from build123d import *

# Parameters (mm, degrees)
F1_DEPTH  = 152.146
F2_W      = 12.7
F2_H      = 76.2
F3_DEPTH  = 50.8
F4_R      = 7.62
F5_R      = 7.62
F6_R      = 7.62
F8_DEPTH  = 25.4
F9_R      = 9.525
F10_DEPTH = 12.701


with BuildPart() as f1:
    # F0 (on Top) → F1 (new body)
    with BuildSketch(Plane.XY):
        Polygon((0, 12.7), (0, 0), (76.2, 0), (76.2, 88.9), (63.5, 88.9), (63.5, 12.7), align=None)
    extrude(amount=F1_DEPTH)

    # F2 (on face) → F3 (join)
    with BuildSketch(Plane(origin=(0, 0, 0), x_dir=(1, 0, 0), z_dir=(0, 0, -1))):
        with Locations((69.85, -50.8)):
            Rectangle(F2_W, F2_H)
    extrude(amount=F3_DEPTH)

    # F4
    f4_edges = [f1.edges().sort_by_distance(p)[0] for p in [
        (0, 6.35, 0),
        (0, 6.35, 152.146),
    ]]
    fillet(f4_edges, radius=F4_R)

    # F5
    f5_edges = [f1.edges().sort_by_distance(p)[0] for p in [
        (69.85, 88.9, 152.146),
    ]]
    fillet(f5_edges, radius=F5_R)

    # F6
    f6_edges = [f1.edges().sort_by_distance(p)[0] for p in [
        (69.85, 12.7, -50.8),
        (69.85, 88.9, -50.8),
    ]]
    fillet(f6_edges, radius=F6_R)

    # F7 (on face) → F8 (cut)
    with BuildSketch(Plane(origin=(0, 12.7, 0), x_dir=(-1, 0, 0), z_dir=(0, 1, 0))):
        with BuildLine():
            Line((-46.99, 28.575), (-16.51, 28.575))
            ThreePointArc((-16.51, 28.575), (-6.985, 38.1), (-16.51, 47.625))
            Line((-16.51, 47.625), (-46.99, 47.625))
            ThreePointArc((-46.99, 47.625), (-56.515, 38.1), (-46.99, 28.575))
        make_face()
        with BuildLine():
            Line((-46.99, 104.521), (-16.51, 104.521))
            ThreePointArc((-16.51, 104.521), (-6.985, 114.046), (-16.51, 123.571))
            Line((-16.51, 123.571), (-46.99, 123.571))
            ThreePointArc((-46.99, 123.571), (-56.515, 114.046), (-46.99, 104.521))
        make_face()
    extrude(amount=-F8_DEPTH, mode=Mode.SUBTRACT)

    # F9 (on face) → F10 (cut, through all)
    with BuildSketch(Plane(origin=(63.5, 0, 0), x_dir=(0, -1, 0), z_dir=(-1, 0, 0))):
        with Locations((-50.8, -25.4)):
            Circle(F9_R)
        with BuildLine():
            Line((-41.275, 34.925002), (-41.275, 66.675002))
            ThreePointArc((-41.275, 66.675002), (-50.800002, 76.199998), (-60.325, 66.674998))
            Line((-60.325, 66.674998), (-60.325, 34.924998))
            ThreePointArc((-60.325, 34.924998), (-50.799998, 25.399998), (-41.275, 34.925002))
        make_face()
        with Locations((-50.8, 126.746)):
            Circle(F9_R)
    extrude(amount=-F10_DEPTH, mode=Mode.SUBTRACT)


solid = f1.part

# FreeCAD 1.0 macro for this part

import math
import FreeCAD as App
import Part
import Sketcher

V = App.Vector
Q = App.Units.Quantity


def edges_at(feature, points):
    """Names of the edges that pass closest to the given points."""
    edges = feature.Shape.Edges
    near = lambda p: min(range(len(edges)), key=lambda i: edges[i].distToShape(Part.Vertex(*p))[0])
    return sorted({f"Edge{near(p) + 1}" for p in points})


def add_polygon(sketch, points):
    """Adds a closed chain of lines whose ends are joined by coincident constraints."""
    first, n = sketch.GeometryCount, len(points)
    for a, b in zip(points, points[1:] + points[:1]):
        sketch.addGeometry(Part.LineSegment(App.Vector(*a, 0), App.Vector(*b, 0)), False)
    for i in range(n):
        sketch.addConstraint(Sketcher.Constraint("Coincident", first + i, 2, first + (i + 1) % n, 1))

doc = App.newDocument("Part")
body = doc.addObject("PartDesign::Body", "Body")

# Sketch on XY plane
sketch1 = body.newObject("Sketcher::SketchObject", "Sketch")
sketch1.AttachmentSupport = (doc.getObject("XY_Plane"), [""])
sketch1.MapMode = "FlatFace"
add_polygon(sketch1, [(0, 13), (0, 0), (76, 0), (76, 89), (64, 89), (64, 13)])  # lines 0-5
sketch1.addConstraint(Sketcher.Constraint("Vertical", 0))
sketch1.addConstraint(Sketcher.Constraint("Horizontal", 1))
sketch1.addConstraint(Sketcher.Constraint("Vertical", 2))
sketch1.addConstraint(Sketcher.Constraint("Horizontal", 3))
sketch1.addConstraint(Sketcher.Constraint("Vertical", 4))
sketch1.addConstraint(Sketcher.Constraint("Horizontal", 5))
sketch1.addConstraint(Sketcher.Constraint("Coincident", 0, 2, -1, 1))
sketch1.addConstraint(Sketcher.Constraint("Equal", 3, 0))
sketch1.addConstraint(Sketcher.Constraint("Equal", 1, 4))
sketch1.addConstraint(Sketcher.Constraint("DistanceX", 1, 1, 1, 2, Q("3 in")))
sketch1.addConstraint(Sketcher.Constraint("DistanceX", 3, 2, 3, 1, Q("0.5 in")))
pad1 = body.newObject("PartDesign::Pad", "Pad")
pad1.Profile = sketch1
pad1.Length = Q("5.99 in")

# Sketch on XY plane
sketch2 = body.newObject("Sketcher::SketchObject", "Sketch001")
sketch2.AttachmentSupport = (doc.getObject("XY_Plane"), [""])
sketch2.MapMode = "FlatFace"
add_polygon(sketch2, [(64, 13), (64, 89), (76, 89), (76, 13)])  # lines 0-3
sketch2.addConstraint(Sketcher.Constraint("Vertical", 0))
sketch2.addConstraint(Sketcher.Constraint("Horizontal", 1))
sketch2.addConstraint(Sketcher.Constraint("Vertical", 2))
sketch2.addConstraint(Sketcher.Constraint("Horizontal", 3))
sketch2.addConstraint(Sketcher.Constraint("DistanceY", 0, 1, 0, 2, Q("3 in")))
sketch2.addConstraint(Sketcher.Constraint("DistanceX", 1, 1, 1, 2, Q("0.5 in")))
sketch2.addConstraint(Sketcher.Constraint("DistanceX", -1, 1, 1, 2, Q("3 in")))
sketch2.addConstraint(Sketcher.Constraint("DistanceY", -1, 1, 0, 2, Q("3.5 in")))
pad2 = body.newObject("PartDesign::Pad", "Pad001")
pad2.Profile = sketch2
pad2.Length = Q("2 in")
pad2.Reversed = True
doc.recompute()

fillet = body.newObject("PartDesign::Fillet", "Fillet")
fillet.Base = (pad2, edges_at(pad2, [(0, 6.35, 0), (0, 6.35, 152.146)]))
fillet.Radius = Q("0.3 in")
doc.recompute()

fillet2 = body.newObject("PartDesign::Fillet", "Fillet001")
fillet2.Base = (fillet, edges_at(fillet, [(69.85, 88.9, 152.146)]))
fillet2.Radius = Q("0.3 in")
doc.recompute()

fillet3 = body.newObject("PartDesign::Fillet", "Fillet002")
fillet3.Base = (fillet2, edges_at(fillet2, [(69.85, 12.7, -50.8), (69.85, 88.9, -50.8)]))
fillet3.Radius = Q("0.3 in")

# Sketch on XZ plane
sketch3 = body.newObject("Sketcher::SketchObject", "Sketch002")
sketch3.AttachmentSupport = (doc.getObject("XZ_Plane"), [""])
sketch3.MapMode = "FlatFace"
sketch3.AttachmentOffset = App.Placement(V(0, 0, -0.5 * 25.4), App.Rotation())
sketch3.addGeometry(Part.LineSegment(V(47, 29, 0), V(17, 29, 0)), False)
sketch3.addGeometry(Part.ArcOfCircle(Part.Circle(V(17, 38, 0), V(0, 0, 1), 10), math.radians(90), math.radians(270)), False)
sketch3.addGeometry(Part.LineSegment(V(17, 48, 0), V(47, 48, 0)), False)
sketch3.addGeometry(Part.ArcOfCircle(Part.Circle(V(47, 38, 0), V(0, 0, 1), 10), math.radians(-90), math.radians(90)), False)
sketch3.addGeometry(Part.LineSegment(V(47, 105, 0), V(17, 105, 0)), False)
sketch3.addGeometry(Part.ArcOfCircle(Part.Circle(V(17, 114, 0), V(0, 0, 1), 10), math.radians(90), math.radians(270)), False)
sketch3.addGeometry(Part.LineSegment(V(17, 124, 0), V(47, 124, 0)), False)
sketch3.addGeometry(Part.ArcOfCircle(Part.Circle(V(47, 114, 0), V(0, 0, 1), 10), math.radians(-90), math.radians(90)), False)
sketch3.addConstraint(Sketcher.Constraint("Tangent", 0, 2, 1, 2))
sketch3.addConstraint(Sketcher.Constraint("Tangent", 1, 1, 2, 1))
sketch3.addConstraint(Sketcher.Constraint("Tangent", 2, 2, 3, 2))
sketch3.addConstraint(Sketcher.Constraint("Tangent", 3, 1, 0, 1))
sketch3.addConstraint(Sketcher.Constraint("Tangent", 4, 2, 5, 2))
sketch3.addConstraint(Sketcher.Constraint("Tangent", 5, 1, 6, 1))
sketch3.addConstraint(Sketcher.Constraint("Tangent", 6, 2, 7, 2))
sketch3.addConstraint(Sketcher.Constraint("Tangent", 7, 1, 4, 1))
sketch3.addConstraint(Sketcher.Constraint("Horizontal", 0))
sketch3.addConstraint(Sketcher.Constraint("Horizontal", 2))
sketch3.addConstraint(Sketcher.Constraint("Horizontal", 4))
sketch3.addConstraint(Sketcher.Constraint("Horizontal", 6))
sketch3.addConstraint(Sketcher.Constraint("Equal", 3, 5))
sketch3.addConstraint(Sketcher.Constraint("Vertical", 1, 3, 5, 3))
sketch3.addConstraint(Sketcher.Constraint("Vertical", 3, 3, 7, 3))
sketch3.addConstraint(Sketcher.Constraint("DistanceX", 0, 2, 0, 1, Q("1.2 in")))
sketch3.addConstraint(Sketcher.Constraint("Radius", 1, Q("0.375 in")))
sketch3.addConstraint(Sketcher.Constraint("DistanceY", -1, 1, 1, 3, Q("1.5 in")))
sketch3.addConstraint(Sketcher.Constraint("DistanceX", -1, 1, 1, 3, Q("0.65 in")))
sketch3.addConstraint(Sketcher.Constraint("DistanceY", -1, 1, 5, 3, Q("4.49 in")))
pocket1 = body.newObject("PartDesign::Pocket", "Pocket")
pocket1.Profile = sketch3
pocket1.Length = Q("1 in")
pocket1.Reversed = True

# Sketch on YZ plane
sketch4 = body.newObject("Sketcher::SketchObject", "Sketch003")
sketch4.AttachmentSupport = (doc.getObject("YZ_Plane"), [""])
sketch4.MapMode = "FlatFace"
sketch4.AttachmentOffset = App.Placement(V(0, 0, 2.5 * 25.4), App.Rotation())
sketch4.addGeometry(Part.Circle(V(51, -25, 0), V(0, 0, 1), 10), False)
sketch4.addGeometry(Part.LineSegment(V(41, 35, 0), V(41, 67, 0)), False)
sketch4.addGeometry(Part.ArcOfCircle(Part.Circle(V(51, 67, 0), V(0, 0, 1), 10), math.radians(0), math.radians(180)), False)
sketch4.addGeometry(Part.LineSegment(V(60, 67, 0), V(60, 35, 0)), False)
sketch4.addGeometry(Part.ArcOfCircle(Part.Circle(V(51, 35, 0), V(0, 0, 1), 10), math.radians(180), math.radians(360)), False)
sketch4.addGeometry(Part.Circle(V(51, 127, 0), V(0, 0, 1), 10), False)
sketch4.addConstraint(Sketcher.Constraint("Tangent", 1, 2, 2, 2))
sketch4.addConstraint(Sketcher.Constraint("Tangent", 2, 1, 3, 1))
sketch4.addConstraint(Sketcher.Constraint("Tangent", 3, 2, 4, 2))
sketch4.addConstraint(Sketcher.Constraint("Tangent", 4, 1, 1, 1))
sketch4.addConstraint(Sketcher.Constraint("Vertical", 1))
sketch4.addConstraint(Sketcher.Constraint("Vertical", 3))
sketch4.addConstraint(Sketcher.Constraint("Equal", 0, 2))
sketch4.addConstraint(Sketcher.Constraint("Equal", 4, 5))
sketch4.addConstraint(Sketcher.Constraint("Vertical", 0, 3, 2, 3))
sketch4.addConstraint(Sketcher.Constraint("Vertical", 4, 3, 5, 3))
sketch4.addConstraint(Sketcher.Constraint("Diameter", 0, Q("0.75 in")))
sketch4.addConstraint(Sketcher.Constraint("DistanceX", -1, 1, 0, 3, Q("2 in")))
sketch4.addConstraint(Sketcher.Constraint("DistanceY", 0, 3, -1, 1, Q("1 in")))
sketch4.addConstraint(Sketcher.Constraint("DistanceY", 1, 1, 1, 2, Q("1.25 in")))
sketch4.addConstraint(Sketcher.Constraint("DistanceY", -1, 1, 5, 3, Q("4.99 in")))
sketch4.addConstraint(Sketcher.Constraint("DistanceY", -1, 1, 2, 3, Q("2.6249999 in")))
pocket2 = body.newObject("PartDesign::Pocket", "Pocket001")
pocket2.Profile = sketch4
pocket2.Type = "ThroughAll"
pocket2.Reversed = True

doc.recompute()
